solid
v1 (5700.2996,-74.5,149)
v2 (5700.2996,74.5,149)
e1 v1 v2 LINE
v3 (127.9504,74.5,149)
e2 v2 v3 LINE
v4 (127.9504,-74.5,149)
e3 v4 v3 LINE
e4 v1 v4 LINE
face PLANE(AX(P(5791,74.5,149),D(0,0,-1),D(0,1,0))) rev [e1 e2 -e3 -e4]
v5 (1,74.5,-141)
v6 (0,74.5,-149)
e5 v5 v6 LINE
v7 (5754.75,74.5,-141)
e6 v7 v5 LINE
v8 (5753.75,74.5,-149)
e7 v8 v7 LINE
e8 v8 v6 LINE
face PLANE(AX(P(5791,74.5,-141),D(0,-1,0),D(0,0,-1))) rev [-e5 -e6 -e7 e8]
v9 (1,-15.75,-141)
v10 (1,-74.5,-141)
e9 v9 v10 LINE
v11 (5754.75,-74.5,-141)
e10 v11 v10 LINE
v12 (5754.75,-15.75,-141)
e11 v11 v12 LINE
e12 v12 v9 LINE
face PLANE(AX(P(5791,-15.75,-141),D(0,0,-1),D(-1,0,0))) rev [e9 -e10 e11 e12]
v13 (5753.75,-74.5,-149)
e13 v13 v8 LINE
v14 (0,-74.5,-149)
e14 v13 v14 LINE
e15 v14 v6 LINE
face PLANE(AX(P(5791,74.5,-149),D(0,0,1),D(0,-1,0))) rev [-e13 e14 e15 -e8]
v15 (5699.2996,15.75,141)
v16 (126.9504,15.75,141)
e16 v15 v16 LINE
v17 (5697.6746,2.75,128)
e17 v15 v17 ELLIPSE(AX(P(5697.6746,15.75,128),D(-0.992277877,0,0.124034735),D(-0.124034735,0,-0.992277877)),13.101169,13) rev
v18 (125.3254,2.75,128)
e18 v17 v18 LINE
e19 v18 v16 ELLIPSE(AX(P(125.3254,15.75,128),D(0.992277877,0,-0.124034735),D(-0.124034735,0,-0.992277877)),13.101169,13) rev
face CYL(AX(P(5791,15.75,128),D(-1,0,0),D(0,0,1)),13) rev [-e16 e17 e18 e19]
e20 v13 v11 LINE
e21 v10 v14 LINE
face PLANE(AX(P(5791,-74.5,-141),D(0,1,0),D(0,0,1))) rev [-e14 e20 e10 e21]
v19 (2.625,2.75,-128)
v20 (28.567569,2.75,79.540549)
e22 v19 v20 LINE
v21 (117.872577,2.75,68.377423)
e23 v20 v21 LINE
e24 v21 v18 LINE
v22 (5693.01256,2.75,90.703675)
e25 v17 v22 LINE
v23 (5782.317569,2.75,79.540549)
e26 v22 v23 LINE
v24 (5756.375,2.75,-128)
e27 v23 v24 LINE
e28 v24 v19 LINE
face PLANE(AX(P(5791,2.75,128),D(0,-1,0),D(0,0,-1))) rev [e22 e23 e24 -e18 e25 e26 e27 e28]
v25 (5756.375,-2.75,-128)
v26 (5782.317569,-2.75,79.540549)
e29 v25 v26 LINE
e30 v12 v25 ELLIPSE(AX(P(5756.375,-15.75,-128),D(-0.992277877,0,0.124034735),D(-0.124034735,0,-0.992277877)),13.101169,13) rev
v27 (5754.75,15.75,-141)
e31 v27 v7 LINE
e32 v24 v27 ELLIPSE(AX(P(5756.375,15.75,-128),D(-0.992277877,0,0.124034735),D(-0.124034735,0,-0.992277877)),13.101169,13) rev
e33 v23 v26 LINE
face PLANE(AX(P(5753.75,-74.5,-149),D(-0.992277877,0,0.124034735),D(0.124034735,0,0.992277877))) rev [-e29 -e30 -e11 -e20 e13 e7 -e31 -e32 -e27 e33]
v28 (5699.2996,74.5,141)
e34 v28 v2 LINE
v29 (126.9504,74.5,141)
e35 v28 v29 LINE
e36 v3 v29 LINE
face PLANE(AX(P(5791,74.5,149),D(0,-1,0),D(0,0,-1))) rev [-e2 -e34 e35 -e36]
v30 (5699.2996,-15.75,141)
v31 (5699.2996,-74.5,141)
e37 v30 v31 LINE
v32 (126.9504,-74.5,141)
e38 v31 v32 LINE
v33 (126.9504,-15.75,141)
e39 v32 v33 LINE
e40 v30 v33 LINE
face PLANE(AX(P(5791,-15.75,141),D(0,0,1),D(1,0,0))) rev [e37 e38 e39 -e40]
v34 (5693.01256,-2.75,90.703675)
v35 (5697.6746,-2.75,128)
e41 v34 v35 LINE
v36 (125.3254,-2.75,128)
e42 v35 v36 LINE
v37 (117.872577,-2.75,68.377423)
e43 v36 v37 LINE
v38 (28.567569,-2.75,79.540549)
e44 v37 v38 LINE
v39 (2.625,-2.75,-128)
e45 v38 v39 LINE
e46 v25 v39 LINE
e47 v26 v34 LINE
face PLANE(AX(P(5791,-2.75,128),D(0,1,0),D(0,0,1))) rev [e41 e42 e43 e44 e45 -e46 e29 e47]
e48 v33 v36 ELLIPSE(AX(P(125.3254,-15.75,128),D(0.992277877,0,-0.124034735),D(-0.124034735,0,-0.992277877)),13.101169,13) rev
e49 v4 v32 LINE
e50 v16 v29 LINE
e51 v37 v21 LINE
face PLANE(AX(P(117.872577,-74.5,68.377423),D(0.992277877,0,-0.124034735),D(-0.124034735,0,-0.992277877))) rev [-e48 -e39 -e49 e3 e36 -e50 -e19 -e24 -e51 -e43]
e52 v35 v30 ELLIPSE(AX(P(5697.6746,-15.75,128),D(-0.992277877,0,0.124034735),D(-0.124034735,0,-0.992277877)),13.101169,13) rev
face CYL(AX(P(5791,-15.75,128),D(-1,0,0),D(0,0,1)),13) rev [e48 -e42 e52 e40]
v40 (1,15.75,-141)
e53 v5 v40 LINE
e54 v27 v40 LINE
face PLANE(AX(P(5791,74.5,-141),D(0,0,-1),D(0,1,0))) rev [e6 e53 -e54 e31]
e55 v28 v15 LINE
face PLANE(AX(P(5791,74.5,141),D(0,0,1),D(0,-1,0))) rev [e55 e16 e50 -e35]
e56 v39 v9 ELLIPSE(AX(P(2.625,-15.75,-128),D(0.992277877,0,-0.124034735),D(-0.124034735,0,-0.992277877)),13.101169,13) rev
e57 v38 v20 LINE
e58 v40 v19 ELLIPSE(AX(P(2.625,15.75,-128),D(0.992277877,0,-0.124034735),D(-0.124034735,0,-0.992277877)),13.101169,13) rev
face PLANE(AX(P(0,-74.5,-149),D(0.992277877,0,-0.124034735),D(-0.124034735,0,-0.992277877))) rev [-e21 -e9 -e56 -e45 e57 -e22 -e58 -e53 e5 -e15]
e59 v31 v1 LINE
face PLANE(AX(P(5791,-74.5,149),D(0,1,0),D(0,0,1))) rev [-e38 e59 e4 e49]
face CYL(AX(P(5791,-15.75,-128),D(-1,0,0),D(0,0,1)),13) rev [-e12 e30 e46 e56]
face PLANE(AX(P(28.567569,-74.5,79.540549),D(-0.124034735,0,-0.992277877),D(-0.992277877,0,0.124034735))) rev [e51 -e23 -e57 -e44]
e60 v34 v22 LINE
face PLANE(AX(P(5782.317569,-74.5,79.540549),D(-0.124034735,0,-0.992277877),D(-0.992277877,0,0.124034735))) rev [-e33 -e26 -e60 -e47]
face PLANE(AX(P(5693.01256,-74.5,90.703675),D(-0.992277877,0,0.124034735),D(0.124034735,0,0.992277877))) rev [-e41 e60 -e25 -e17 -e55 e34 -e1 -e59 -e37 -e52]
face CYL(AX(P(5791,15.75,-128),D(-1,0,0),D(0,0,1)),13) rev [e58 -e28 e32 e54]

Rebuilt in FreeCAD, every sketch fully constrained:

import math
import FreeCAD as App
import Part
import Sketcher

V = App.Vector
Q = App.Units.Quantity

doc = App.newDocument("Part")
body = doc.addObject("PartDesign::Body", "Body")

# Sketch on YZ plane
sketch1 = body.newObject("Sketcher::SketchObject", "Sketch")
sketch1.AttachmentSupport = (doc.getObject("YZ_Plane"), [""])
sketch1.MapMode = "FlatFace"
sketch1.addGeometry([
    Part.LineSegment(V(-16, -141, 0), V(-74, -141, 0)),  # 0
    Part.LineSegment(V(-74, -141, 0), V(-74, -149, 0)),  # 1
    Part.LineSegment(V(-74, -149, 0), V(74, -149, 0)),  # 2
    Part.LineSegment(V(74, -149, 0), V(74, -141, 0)),  # 3
    Part.LineSegment(V(74, -141, 0), V(16, -141, 0)),  # 4
    Part.ArcOfCircle(Part.Circle(V(16, -128, 0), V(0, 0, 1), 13), math.radians(-180), math.radians(-90)),  # 5
    Part.LineSegment(V(3, -128, 0), V(3, 128, 0)),  # 6
    Part.ArcOfCircle(Part.Circle(V(16, 128, 0), V(0, 0, 1), 13), math.radians(90), math.radians(180)),  # 7
    Part.LineSegment(V(16, 141, 0), V(74, 141, 0)),  # 8
    Part.LineSegment(V(74, 141, 0), V(74, 149, 0)),  # 9
    Part.LineSegment(V(74, 149, 0), V(-74, 149, 0)),  # 10
    Part.LineSegment(V(-74, 149, 0), V(-74, 141, 0)),  # 11
    Part.LineSegment(V(-74, 141, 0), V(-16, 141, 0)),  # 12
    Part.ArcOfCircle(Part.Circle(V(-16, 128, 0), V(0, 0, 1), 13), math.radians(0), math.radians(90)),  # 13
    Part.LineSegment(V(-3, 128, 0), V(-3, -128, 0)),  # 14
    Part.ArcOfCircle(Part.Circle(V(-16, -128, 0), V(0, 0, 1), 13), math.radians(-90), math.radians(0)),  # 15
], False)
sketch1.addConstraint([
    Sketcher.Constraint("Coincident", 0, 2, 1, 1),
    Sketcher.Constraint("Coincident", 1, 2, 2, 1),
    Sketcher.Constraint("Coincident", 2, 2, 3, 1),
    Sketcher.Constraint("Coincident", 3, 2, 4, 1),
    Sketcher.Constraint("Tangent", 4, 2, 5, 2),
    Sketcher.Constraint("Tangent", 5, 1, 6, 1),
    Sketcher.Constraint("Tangent", 6, 2, 7, 2),
    Sketcher.Constraint("Tangent", 7, 1, 8, 1),
    Sketcher.Constraint("Coincident", 8, 2, 9, 1),
    Sketcher.Constraint("Coincident", 9, 2, 10, 1),
    Sketcher.Constraint("Coincident", 10, 2, 11, 1),
    Sketcher.Constraint("Coincident", 11, 2, 12, 1),
    Sketcher.Constraint("Tangent", 12, 2, 13, 2),
    Sketcher.Constraint("Tangent", 13, 1, 14, 1),
    Sketcher.Constraint("Tangent", 14, 2, 15, 2),
    Sketcher.Constraint("Tangent", 15, 1, 0, 1),
    Sketcher.Constraint("Horizontal", 0),
    Sketcher.Constraint("Vertical", 1),
    Sketcher.Constraint("Horizontal", 2),
    Sketcher.Constraint("Vertical", 3),
    Sketcher.Constraint("Horizontal", 4),
    Sketcher.Constraint("Vertical", 6),
    Sketcher.Constraint("Horizontal", 8),
    Sketcher.Constraint("Vertical", 9),
    Sketcher.Constraint("Horizontal", 10),
    Sketcher.Constraint("Vertical", 11),
    Sketcher.Constraint("Horizontal", 12),
    Sketcher.Constraint("Vertical", 14),
    Sketcher.Constraint("Equal", 5, 7),
    Sketcher.Constraint("Equal", 7, 13),
    Sketcher.Constraint("Equal", 13, 15),
    Sketcher.Constraint("Symmetric", 5, 3, 13, 3, -1, 1),
    Sketcher.Constraint("Symmetric", 0, 2, 8, 2, -1, 1),
    Sketcher.Constraint("Symmetric", 2, 2, 10, 2, -1, 1),
    Sketcher.Constraint("Symmetric", 0, 2, 3, 2, -2),
    Sketcher.Constraint("Radius", 5, Q("13 mm")),
    Sketcher.Constraint("DistanceX", 2, 1, 2, 2, Q("149 mm")),
    Sketcher.Constraint("DistanceY", 1, 2, 1, 1, Q("8 mm")),
    Sketcher.Constraint("DistanceY", 6, 1, 6, 2, Q("256 mm")),
    Sketcher.Constraint("DistanceX", 0, 2, 0, 1, Q("58.75 mm")),
])
pad1 = body.newObject("PartDesign::Pad", "Pad")
pad1.Profile = sketch1
pad1.Length = 5791

# Sketch on XZ plane
sketch2 = body.newObject("Sketcher::SketchObject", "Sketch001")
sketch2.AttachmentSupport = (doc.getObject("XZ_Plane"), [""])
sketch2.MapMode = "FlatFace"
sketch2.AttachmentOffset = App.Placement(V(0, 0, -74.5), App.Rotation())
sketch2.addGeometry([
    Part.LineSegment(V(0, -149, 0), V(0, 149, 0)),  # 0
    Part.LineSegment(V(0, 149, 0), V(37, 149, 0)),  # 1
    Part.LineSegment(V(37, 149, 0), V(0, -149, 0)),  # 2
    Part.LineSegment(V(5791, 149, 0), V(5791, -149, 0)),  # 3
    Part.LineSegment(V(5791, -149, 0), V(5754, -149, 0)),  # 4
    Part.LineSegment(V(5754, -149, 0), V(5791, 149, 0)),  # 5
], False)
sketch2.addConstraint([
    Sketcher.Constraint("Coincident", 0, 2, 1, 1),
    Sketcher.Constraint("Coincident", 1, 2, 2, 1),
    Sketcher.Constraint("Coincident", 2, 2, 0, 1),
    Sketcher.Constraint("Coincident", 3, 2, 4, 1),
    Sketcher.Constraint("Coincident", 4, 2, 5, 1),
    Sketcher.Constraint("Coincident", 5, 2, 3, 1),
    Sketcher.Constraint("Vertical", 0),
    Sketcher.Constraint("Horizontal", 1),
    Sketcher.Constraint("Vertical", 3),
    Sketcher.Constraint("Horizontal", 4),
    Sketcher.Constraint("Symmetric", 0, 2, 2, 2, -1, 1),
    Sketcher.Constraint("Parallel", 2, 5),
    Sketcher.Constraint("Horizontal", 2, 2, 3, 2),
    Sketcher.Constraint("Horizontal", 1, 2, 5, 2),
    Sketcher.Constraint("DistanceY", 0, 1, 0, 2, Q("298 mm")),
    Sketcher.Constraint("DistanceX", -1, 1, 3, 2, Q("5791 mm")),
    Sketcher.Constraint("DistanceX", 1, 1, 1, 2, Q("37.25 mm")),
])
pocket1 = body.newObject("PartDesign::Pocket", "Pocket")
pocket1.Profile = sketch2
pocket1.Type = "ThroughAll"
pocket1.Reversed = True

# Sketch on XZ plane
sketch3 = body.newObject("Sketcher::SketchObject", "Sketch002")
sketch3.AttachmentSupport = (doc.getObject("XZ_Plane"), [""])
sketch3.MapMode = "FlatFace"
sketch3.AttachmentOffset = App.Placement(V(0, 0, -2.75), App.Rotation())
sketch3.addGeometry([
    Part.LineSegment(V(118, 68, 0), V(29, 80, 0)),  # 0
    Part.LineSegment(V(29, 80, 0), V(37, 149, 0)),  # 1
    Part.LineSegment(V(37, 149, 0), V(128, 149, 0)),  # 2
    Part.LineSegment(V(128, 149, 0), V(118, 68, 0)),  # 3
    Part.LineSegment(V(5782, 80, 0), V(5693, 91, 0)),  # 4
    Part.LineSegment(V(5693, 91, 0), V(5700, 149, 0)),  # 5
    Part.LineSegment(V(5700, 149, 0), V(5791, 149, 0)),  # 6
    Part.LineSegment(V(5791, 149, 0), V(5782, 80, 0)),  # 7
], False)
sketch3.addConstraint([
    Sketcher.Constraint("Coincident", 0, 2, 1, 1),
    Sketcher.Constraint("Coincident", 1, 2, 2, 1),
    Sketcher.Constraint("Coincident", 2, 2, 3, 1),
    Sketcher.Constraint("Coincident", 3, 2, 0, 1),
    Sketcher.Constraint("Coincident", 4, 2, 5, 1),
    Sketcher.Constraint("Coincident", 5, 2, 6, 1),
    Sketcher.Constraint("Coincident", 6, 2, 7, 1),
    Sketcher.Constraint("Coincident", 7, 2, 4, 1),
    Sketcher.Constraint("Horizontal", 2),
    Sketcher.Constraint("Horizontal", 6),
    Sketcher.Constraint("Perpendicular", 0, 1),
    Sketcher.Constraint("Parallel", 1, 3),
    Sketcher.Constraint("Perpendicular", 3, 4),
    Sketcher.Constraint("Perpendicular", 4, 5),
    Sketcher.Constraint("Parallel", 5, 7),
    Sketcher.Constraint("Horizontal", 2, 2, 5, 2),
    Sketcher.Constraint("Horizontal", 0, 2, 7, 2),
    Sketcher.Constraint("Equal", 2, 6),
    Sketcher.Constraint("Distance", 0, Q("90 mm")),
    Sketcher.Constraint("Distance", 1, Q("70 mm")),
    Sketcher.Constraint("DistanceY", -1, 1, 1, 2, Q("149 mm")),
    Sketcher.Constraint("DistanceX", -1, 1, 6, 2, Q("5791 mm")),
    Sketcher.Constraint("Distance", 3, Q("81.25 mm")),
    Sketcher.Constraint("DistanceX", -1, 1, 1, 2, Q("37.25 mm")),
])
pocket2 = body.newObject("PartDesign::Pocket", "Pocket001")
pocket2.Profile = sketch3
pocket2.Type = "ThroughAll"
pocket2.Midplane = True

doc.recompute()
